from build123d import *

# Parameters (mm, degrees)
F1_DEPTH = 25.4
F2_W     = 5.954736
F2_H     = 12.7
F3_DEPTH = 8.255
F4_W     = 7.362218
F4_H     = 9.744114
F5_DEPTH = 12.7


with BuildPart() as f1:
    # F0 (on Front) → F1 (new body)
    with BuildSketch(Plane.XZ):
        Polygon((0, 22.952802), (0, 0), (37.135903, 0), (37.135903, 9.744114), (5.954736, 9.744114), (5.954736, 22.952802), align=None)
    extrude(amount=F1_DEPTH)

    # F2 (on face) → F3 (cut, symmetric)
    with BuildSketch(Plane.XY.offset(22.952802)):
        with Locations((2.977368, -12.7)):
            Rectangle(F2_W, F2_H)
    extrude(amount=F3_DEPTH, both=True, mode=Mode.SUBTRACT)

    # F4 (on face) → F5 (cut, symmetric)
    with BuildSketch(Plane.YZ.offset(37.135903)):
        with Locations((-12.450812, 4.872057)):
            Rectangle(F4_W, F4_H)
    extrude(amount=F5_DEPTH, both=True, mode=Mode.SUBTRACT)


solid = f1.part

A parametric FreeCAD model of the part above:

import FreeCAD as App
import Part
import Sketcher
from FreeCAD import Vector
Q = App.Units.Quantity

doc = App.newDocument("Part")
body = doc.addObject("PartDesign::Body", "Body")

sketch1 = doc.addObject("Sketcher::SketchObject", "Sketch")
body.addObject(sketch1)
sketch1.AttachmentSupport = (doc.XZ_Plane, [""])
sketch1.MapMode = "FlatFace"
sketch1.addGeometry([
    Part.LineSegment(Vector(0, 22.952802, 0), Vector(0, 0, 0)),
    Part.LineSegment(Vector(0, 0, 0), Vector(37.135903, 0, 0)),
    Part.LineSegment(Vector(37.135903, 0, 0), Vector(37.135903, 9.744114, 0)),
    Part.LineSegment(Vector(37.135903, 9.744114, 0), Vector(5.954736, 9.744114, 0)),
    Part.LineSegment(Vector(5.954736, 9.744114, 0), Vector(5.954736, 22.952802, 0)),
    Part.LineSegment(Vector(5.954736, 22.952802, 0), Vector(0, 22.952802, 0)),
], False)
sketch1.addConstraint([
    Sketcher.Constraint("Coincident", 0, 2, 1, 1),
    Sketcher.Constraint("Coincident", 1, 2, 2, 1),
    Sketcher.Constraint("Coincident", 2, 2, 3, 1),
    Sketcher.Constraint("Coincident", 3, 2, 4, 1),
    Sketcher.Constraint("Coincident", 4, 2, 5, 1),
    Sketcher.Constraint("Coincident", 5, 2, 0, 1),
    Sketcher.Constraint("Vertical", 0),
    Sketcher.Constraint("Horizontal", 1),
    Sketcher.Constraint("Vertical", 2),
    Sketcher.Constraint("Horizontal", 3),
    Sketcher.Constraint("Vertical", 4),
    Sketcher.Constraint("Horizontal", 5),
    Sketcher.Constraint("Coincident", 0, 2, -1, 1),
    Sketcher.Constraint("DistanceY", 0, 2, 0, 1, 22.952802),
    Sketcher.Constraint("DistanceX", 1, 1, 1, 2, 37.135903),
    Sketcher.Constraint("DistanceX", 3, 2, 3, 1, 31.181167),
    Sketcher.Constraint("DistanceY", 2, 1, 2, 2, 9.744114),
])
pad1 = doc.addObject("PartDesign::Pad", "Pad")
body.addObject(pad1)
pad1.Profile = sketch1
pad1.Length = Q("1 in")

sketch2 = doc.addObject("Sketcher::SketchObject", "Sketch001")
body.addObject(sketch2)
sketch2.AttachmentSupport = (doc.XY_Plane, [""])
sketch2.MapMode = "FlatFace"
sketch2.AttachmentOffset = App.Placement(Vector(0, 0, 22.952802), App.Rotation())
sketch2.addGeometry([
    Part.LineSegment(Vector(0, -6.35, 0), Vector(0, -19.05, 0)),
    Part.LineSegment(Vector(0, -19.05, 0), Vector(5.954736, -19.05, 0)),
    Part.LineSegment(Vector(5.954736, -19.05, 0), Vector(5.954736, -6.35, 0)),
    Part.LineSegment(Vector(5.954736, -6.35, 0), Vector(0, -6.35, 0)),
], False)
sketch2.addConstraint([
    Sketcher.Constraint("Coincident", 0, 2, 1, 1),
    Sketcher.Constraint("Coincident", 1, 2, 2, 1),
    Sketcher.Constraint("Coincident", 2, 2, 3, 1),
    Sketcher.Constraint("Coincident", 3, 2, 0, 1),
    Sketcher.Constraint("Vertical", 0),
    Sketcher.Constraint("Horizontal", 1),
    Sketcher.Constraint("Vertical", 2),
    Sketcher.Constraint("Horizontal", 3),
    Sketcher.Constraint("PointOnObject", 0, 2, -2),
    Sketcher.Constraint("DistanceY", 0, 2, 0, 1, Q("0.5 in")),
    Sketcher.Constraint("DistanceY", 0, 2, -1, 1, Q("0.75 in")),
    Sketcher.Constraint("DistanceX", 1, 1, 1, 2, 5.954736),
])
pocket1 = doc.addObject("PartDesign::Pocket", "Pocket")
body.addObject(pocket1)
pocket1.Profile = sketch2
pocket1.Length = Q("0.65 in")
pocket1.Midplane = True

sketch3 = doc.addObject("Sketcher::SketchObject", "Sketch002")
body.addObject(sketch3)
sketch3.AttachmentSupport = (doc.YZ_Plane, [""])
sketch3.MapMode = "FlatFace"
sketch3.AttachmentOffset = App.Placement(Vector(0, 0, 37.135903), App.Rotation())
sketch3.addGeometry([
    Part.LineSegment(Vector(-16.131921, 9.744114, 0), Vector(-16.131921, 0, 0)),
    Part.LineSegment(Vector(-16.131921, 0, 0), Vector(-8.769703, 0, 0)),
    Part.LineSegment(Vector(-8.769703, 0, 0), Vector(-8.769703, 9.744114, 0)),
    Part.LineSegment(Vector(-8.769703, 9.744114, 0), Vector(-16.131921, 9.744114, 0)),
], False)
sketch3.addConstraint([
    Sketcher.Constraint("Coincident", 0, 2, 1, 1),
    Sketcher.Constraint("Coincident", 1, 2, 2, 1),
    Sketcher.Constraint("Coincident", 2, 2, 3, 1),
    Sketcher.Constraint("Coincident", 3, 2, 0, 1),
    Sketcher.Constraint("Vertical", 0),
    Sketcher.Constraint("Horizontal", 1),
    Sketcher.Constraint("Vertical", 2),
    Sketcher.Constraint("Horizontal", 3),
    Sketcher.Constraint("PointOnObject", 0, 2, -1),
    Sketcher.Constraint("DistanceX", 1, 1, 1, 2, 7.362218),
    Sketcher.Constraint("DistanceY", 0, 2, 0, 1, 9.744114),
    Sketcher.Constraint("DistanceX", 0, 2, -1, 1, 16.131921),
])
pocket2 = doc.addObject("PartDesign::Pocket", "Pocket001")
body.addObject(pocket2)
pocket2.Profile = sketch3
pocket2.Length = Q("1 in")
pocket2.Midplane = True

doc.recompute()
